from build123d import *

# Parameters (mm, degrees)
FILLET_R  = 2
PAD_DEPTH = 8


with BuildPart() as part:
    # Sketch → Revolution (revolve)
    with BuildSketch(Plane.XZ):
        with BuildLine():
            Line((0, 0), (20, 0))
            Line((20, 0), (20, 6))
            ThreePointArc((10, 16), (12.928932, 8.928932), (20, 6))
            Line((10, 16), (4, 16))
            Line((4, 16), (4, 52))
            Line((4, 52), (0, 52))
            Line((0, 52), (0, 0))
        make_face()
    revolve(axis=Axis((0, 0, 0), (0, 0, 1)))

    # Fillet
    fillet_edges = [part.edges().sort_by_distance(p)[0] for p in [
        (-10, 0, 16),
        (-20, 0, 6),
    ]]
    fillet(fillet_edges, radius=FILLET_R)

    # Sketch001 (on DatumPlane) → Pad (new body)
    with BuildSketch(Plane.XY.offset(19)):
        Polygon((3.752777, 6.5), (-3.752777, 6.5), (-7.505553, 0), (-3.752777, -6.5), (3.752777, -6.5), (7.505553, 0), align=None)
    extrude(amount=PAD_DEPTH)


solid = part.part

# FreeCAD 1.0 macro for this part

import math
import FreeCAD as App
import Part
import Sketcher
from FreeCAD import Vector
Q = App.Units.Quantity


def edges_at(feature, points):
    """Names of the edges that pass closest to the given points."""
    edges = feature.Shape.Edges
    near = lambda p: min(range(len(edges)), key=lambda i: edges[i].distToShape(Part.Vertex(*p))[0])
    return sorted({f"Edge{near(p) + 1}" for p in points})


def add_polygon(sketch, points):
    """Adds a closed chain of lines whose ends are joined by coincident constraints."""
    first, n = sketch.GeometryCount, len(points)
    for a, b in zip(points, points[1:] + points[:1]):
        sketch.addGeometry(Part.LineSegment(App.Vector(*a, 0), App.Vector(*b, 0)), False)
    for i in range(n):
        sketch.addConstraint(Sketcher.Constraint("Coincident", first + i, 2, first + (i + 1) % n, 1))

doc = App.newDocument("Part")
body = doc.addObject("PartDesign::Body", "Body")

# Sketch on XZ plane
sketch1 = body.newObject("Sketcher::SketchObject", "Sketch")
sketch1.AttachmentSupport = (doc.getObject("XZ_Plane"), [""])
sketch1.MapMode = "FlatFace"
sketch1.addGeometry(Part.LineSegment(Vector(0, 0, 0), Vector(20, 0, 0)), False)
sketch1.addGeometry(Part.LineSegment(Vector(20, 0, 0), Vector(20, 6, 0)), False)
sketch1.addGeometry(Part.ArcOfCircle(Part.Circle(Vector(19.999999, 15.999999, 0), Vector(0, 0, 1), 9.999999), math.radians(179.999996), math.radians(270.000004)), False)
sketch1.addGeometry(Part.LineSegment(Vector(10, 16, 0), Vector(4, 16, 0)), False)
sketch1.addGeometry(Part.LineSegment(Vector(4, 16, 0), Vector(4, 52, 0)), False)
sketch1.addGeometry(Part.LineSegment(Vector(4, 52, 0), Vector(0, 52, 0)), False)
sketch1.addGeometry(Part.LineSegment(Vector(0, 52, 0), Vector(0, 0, 0)), False)
sketch1.addConstraint(Sketcher.Constraint("Coincident", 0, 2, 1, 1))
sketch1.addConstraint(Sketcher.Constraint("Coincident", 1, 2, 2, 2))
sketch1.addConstraint(Sketcher.Constraint("Coincident", 2, 1, 3, 1))
sketch1.addConstraint(Sketcher.Constraint("Coincident", 3, 2, 4, 1))
sketch1.addConstraint(Sketcher.Constraint("Coincident", 4, 2, 5, 1))
sketch1.addConstraint(Sketcher.Constraint("Coincident", 5, 2, 6, 1))
sketch1.addConstraint(Sketcher.Constraint("Coincident", 6, 2, 0, 1))
sketch1.addConstraint(Sketcher.Constraint("Horizontal", 0))
sketch1.addConstraint(Sketcher.Constraint("Vertical", 1))
sketch1.addConstraint(Sketcher.Constraint("Horizontal", 3))
sketch1.addConstraint(Sketcher.Constraint("Vertical", 4))
sketch1.addConstraint(Sketcher.Constraint("Horizontal", 5))
sketch1.addConstraint(Sketcher.Constraint("Vertical", 6))
sketch1.addConstraint(Sketcher.Constraint("Coincident", 6, 2, -1, 1))
sketch1.addConstraint(Sketcher.Constraint("Vertical", 2, 3, 0, 2))
sketch1.addConstraint(Sketcher.Constraint("Equal", 3, 1))
sketch1.addConstraint(Sketcher.Constraint("Radius", 2, Q("9.999999 mm")))
sketch1.addConstraint(Sketcher.Constraint("DistanceX", 0, 1, 0, 2, Q("20 mm")))
sketch1.addConstraint(Sketcher.Constraint("DistanceX", 3, 2, 3, 1, Q("6 mm")))
sketch1.addConstraint(Sketcher.Constraint("DistanceY", 4, 1, 4, 2, Q("36 mm")))
sketch1.addConstraint(Sketcher.Constraint("DistanceY", 6, 2, 6, 1, Q("52 mm")))
revolution = body.newObject("PartDesign::Revolution", "Revolution")
revolution.Profile = sketch1
revolution.ReferenceAxis = (sketch1, ["V_Axis"])
revolution.Angle = 360
doc.recompute()

fillet = body.newObject("PartDesign::Fillet", "Fillet")
fillet.Base = (revolution, edges_at(revolution, [(-10, 0, 16), (-20, 0, 6)]))
fillet.Radius = 2

# Sketch on XY plane
sketch2 = body.newObject("Sketcher::SketchObject", "Sketch001")
sketch2.AttachmentSupport = (doc.getObject("XY_Plane"), [""])
sketch2.MapMode = "FlatFace"
sketch2.AttachmentOffset = App.Placement(Vector(0, 0, 19), App.Rotation())
add_polygon(sketch2, [(3.752777, 6.5), (-3.752777, 6.5), (-7.505553, 0), (-3.752777, -6.5), (3.752777, -6.5), (7.505553, 0)])  # lines 0-5
sketch2.addConstraint(Sketcher.Constraint("Horizontal", 0))
sketch2.addConstraint(Sketcher.Constraint("Horizontal", 3))
sketch2.addConstraint(Sketcher.Constraint("Symmetric", 0, 2, 3, 2, -1, 1))
sketch2.addConstraint(Sketcher.Constraint("Symmetric", 1, 2, 4, 2, -1, 1))
sketch2.addConstraint(Sketcher.Constraint("PointOnObject", 1, 2, -1))
sketch2.addConstraint(Sketcher.Constraint("Parallel", 2, 5))
sketch2.addConstraint(Sketcher.Constraint("Vertical", 0, 2, 2, 2))
sketch2.addConstraint(Sketcher.Constraint("Angle", 1, Q("-119.999995 deg")))
sketch2.addConstraint(Sketcher.Constraint("DistanceY", 2, 2, 0, 2, Q("13 mm")))
sketch2.addConstraint(Sketcher.Constraint("DistanceX", 0, 2, 0, 1, Q("7.505554 mm")))
pad1 = body.newObject("PartDesign::Pad", "Pad")
pad1.Profile = sketch2
pad1.Length = 8

doc.recompute()
